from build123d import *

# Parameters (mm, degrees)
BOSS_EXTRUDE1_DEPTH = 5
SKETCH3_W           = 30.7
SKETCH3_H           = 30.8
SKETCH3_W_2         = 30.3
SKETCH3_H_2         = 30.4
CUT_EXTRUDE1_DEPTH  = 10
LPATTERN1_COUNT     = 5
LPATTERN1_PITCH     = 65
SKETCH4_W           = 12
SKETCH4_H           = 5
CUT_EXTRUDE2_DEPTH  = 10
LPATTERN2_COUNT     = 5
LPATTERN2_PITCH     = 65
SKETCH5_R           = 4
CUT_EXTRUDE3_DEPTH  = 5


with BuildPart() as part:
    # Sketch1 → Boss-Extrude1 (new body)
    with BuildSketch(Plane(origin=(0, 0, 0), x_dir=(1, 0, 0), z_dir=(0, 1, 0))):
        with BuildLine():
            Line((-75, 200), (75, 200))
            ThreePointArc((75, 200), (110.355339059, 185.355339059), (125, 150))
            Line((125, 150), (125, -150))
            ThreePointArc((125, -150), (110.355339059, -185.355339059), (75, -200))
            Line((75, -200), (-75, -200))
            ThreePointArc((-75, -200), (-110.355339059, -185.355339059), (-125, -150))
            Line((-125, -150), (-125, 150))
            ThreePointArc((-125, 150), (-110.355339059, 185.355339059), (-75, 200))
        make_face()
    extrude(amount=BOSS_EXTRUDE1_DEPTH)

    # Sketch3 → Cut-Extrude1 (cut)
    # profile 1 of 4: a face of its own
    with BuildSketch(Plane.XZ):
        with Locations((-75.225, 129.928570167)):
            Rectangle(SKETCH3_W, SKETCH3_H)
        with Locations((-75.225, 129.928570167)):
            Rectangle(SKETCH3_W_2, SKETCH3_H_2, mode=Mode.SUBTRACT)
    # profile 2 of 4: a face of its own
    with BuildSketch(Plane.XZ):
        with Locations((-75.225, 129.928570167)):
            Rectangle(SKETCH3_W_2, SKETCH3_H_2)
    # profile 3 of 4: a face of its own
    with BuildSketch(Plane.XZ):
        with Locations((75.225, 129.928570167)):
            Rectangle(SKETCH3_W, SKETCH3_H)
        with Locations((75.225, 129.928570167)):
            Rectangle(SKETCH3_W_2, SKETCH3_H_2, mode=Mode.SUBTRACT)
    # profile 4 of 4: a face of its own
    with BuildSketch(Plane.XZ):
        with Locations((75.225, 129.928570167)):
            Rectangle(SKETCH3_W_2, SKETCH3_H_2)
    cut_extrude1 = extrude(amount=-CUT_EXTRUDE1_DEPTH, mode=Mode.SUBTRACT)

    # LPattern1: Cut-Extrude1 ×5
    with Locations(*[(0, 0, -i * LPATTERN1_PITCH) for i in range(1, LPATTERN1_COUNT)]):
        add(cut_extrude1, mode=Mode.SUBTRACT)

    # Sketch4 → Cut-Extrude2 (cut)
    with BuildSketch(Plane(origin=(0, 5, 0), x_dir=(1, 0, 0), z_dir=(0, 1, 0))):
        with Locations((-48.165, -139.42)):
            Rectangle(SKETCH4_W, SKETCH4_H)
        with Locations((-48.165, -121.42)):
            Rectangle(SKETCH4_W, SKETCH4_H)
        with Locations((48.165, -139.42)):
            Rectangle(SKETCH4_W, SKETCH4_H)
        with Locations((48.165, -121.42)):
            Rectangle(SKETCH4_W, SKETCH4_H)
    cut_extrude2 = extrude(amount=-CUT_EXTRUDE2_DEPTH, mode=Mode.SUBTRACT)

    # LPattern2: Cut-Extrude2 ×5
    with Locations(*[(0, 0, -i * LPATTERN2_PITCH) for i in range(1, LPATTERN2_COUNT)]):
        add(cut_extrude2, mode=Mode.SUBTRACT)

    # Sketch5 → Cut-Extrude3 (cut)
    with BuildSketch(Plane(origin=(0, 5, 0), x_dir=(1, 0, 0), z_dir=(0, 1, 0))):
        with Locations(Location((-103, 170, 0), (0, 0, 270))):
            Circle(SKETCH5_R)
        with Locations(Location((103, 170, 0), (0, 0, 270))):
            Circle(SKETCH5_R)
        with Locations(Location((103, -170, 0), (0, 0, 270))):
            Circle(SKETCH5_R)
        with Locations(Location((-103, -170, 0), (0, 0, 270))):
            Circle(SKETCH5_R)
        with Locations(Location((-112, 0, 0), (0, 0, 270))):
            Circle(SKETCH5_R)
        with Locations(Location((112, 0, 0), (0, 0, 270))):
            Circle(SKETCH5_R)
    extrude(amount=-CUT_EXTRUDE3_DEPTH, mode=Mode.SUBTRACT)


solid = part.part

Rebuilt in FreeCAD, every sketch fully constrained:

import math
import FreeCAD as App
import Part
import Sketcher

V = App.Vector
Q = App.Units.Quantity

doc = App.newDocument("Part")
body = doc.addObject("PartDesign::Body", "Body")

# Sketch on XZ plane
sketch1 = body.newObject("Sketcher::SketchObject", "Sketch")
sketch1.AttachmentSupport = (doc.getObject("XZ_Plane"), [""])
sketch1.MapMode = "FlatFace"
sketch1.addGeometry([
    Part.LineSegment(V(75, -200, 0), V(-75, -200, 0)),  # 0
    Part.ArcOfCircle(Part.Circle(V(-75, -150, 0), V(0, 0, 1), 50), math.radians(-180), math.radians(-90)),  # 1
    Part.LineSegment(V(-125, -150, 0), V(-125, 150, 0)),  # 2
    Part.ArcOfCircle(Part.Circle(V(-75, 150, 0), V(0, 0, 1), 50), math.radians(90), math.radians(180)),  # 3
    Part.LineSegment(V(-75, 200, 0), V(75, 200, 0)),  # 4
    Part.ArcOfCircle(Part.Circle(V(75, 150, 0), V(0, 0, 1), 50), math.radians(0), math.radians(90)),  # 5
    Part.LineSegment(V(125, 150, 0), V(125, -150, 0)),  # 6
    Part.ArcOfCircle(Part.Circle(V(75, -150, 0), V(0, 0, 1), 50), math.radians(-90), math.radians(0)),  # 7
], False)
sketch1.addConstraint([
    Sketcher.Constraint("Tangent", 0, 2, 1, 2),
    Sketcher.Constraint("Tangent", 1, 1, 2, 1),
    Sketcher.Constraint("Tangent", 2, 2, 3, 2),
    Sketcher.Constraint("Tangent", 3, 1, 4, 1),
    Sketcher.Constraint("Tangent", 4, 2, 5, 2),
    Sketcher.Constraint("Tangent", 5, 1, 6, 1),
    Sketcher.Constraint("Tangent", 6, 2, 7, 2),
    Sketcher.Constraint("Tangent", 7, 1, 0, 1),
    Sketcher.Constraint("Horizontal", 0),
    Sketcher.Constraint("Vertical", 2),
    Sketcher.Constraint("Horizontal", 4),
    Sketcher.Constraint("Vertical", 6),
    Sketcher.Constraint("Equal", 1, 3),
    Sketcher.Constraint("Equal", 3, 5),
    Sketcher.Constraint("Equal", 5, 7),
    Sketcher.Constraint("Symmetric", 1, 3, 5, 3, -1, 1),
    Sketcher.Constraint("Radius", 1, Q("50 mm")),
    Sketcher.Constraint("DistanceX", 0, 2, 0, 1, Q("150 mm")),
    Sketcher.Constraint("DistanceY", 2, 1, 2, 2, Q("300 mm")),
])
pad1 = body.newObject("PartDesign::Pad", "Pad")
pad1.Profile = sketch1
pad1.Length = 5
pad1.Reversed = True

# Sketch on XZ plane
sketch2 = body.newObject("Sketcher::SketchObject", "Sketch001")
sketch2.AttachmentSupport = (doc.getObject("XZ_Plane"), [""])
sketch2.MapMode = "FlatFace"
sketch2.addGeometry([
    Part.LineSegment(V(-90.575, 145.32857, 0), V(-90.575, 114.52857, 0)),  # 0
    Part.LineSegment(V(-90.575, 114.52857, 0), V(-59.875, 114.52857, 0)),  # 1
    Part.LineSegment(V(-59.875, 114.52857, 0), V(-59.875, 145.32857, 0)),  # 2
    Part.LineSegment(V(-59.875, 145.32857, 0), V(-90.575, 145.32857, 0)),  # 3
    Part.LineSegment(V(59.875, 145.32857, 0), V(59.875, 114.52857, 0)),  # 4
    Part.LineSegment(V(59.875, 114.52857, 0), V(90.575, 114.52857, 0)),  # 5
    Part.LineSegment(V(90.575, 114.52857, 0), V(90.575, 145.32857, 0)),  # 6
    Part.LineSegment(V(90.575, 145.32857, 0), V(59.875, 145.32857, 0)),  # 7
], False)
sketch2.addConstraint([
    Sketcher.Constraint("Coincident", 0, 2, 1, 1),
    Sketcher.Constraint("Coincident", 1, 2, 2, 1),
    Sketcher.Constraint("Coincident", 2, 2, 3, 1),
    Sketcher.Constraint("Coincident", 3, 2, 0, 1),
    Sketcher.Constraint("Coincident", 4, 2, 5, 1),
    Sketcher.Constraint("Coincident", 5, 2, 6, 1),
    Sketcher.Constraint("Coincident", 6, 2, 7, 1),
    Sketcher.Constraint("Coincident", 7, 2, 4, 1),
    Sketcher.Constraint("Vertical", 0),
    Sketcher.Constraint("Horizontal", 1),
    Sketcher.Constraint("Vertical", 2),
    Sketcher.Constraint("Horizontal", 3),
    Sketcher.Constraint("Vertical", 4),
    Sketcher.Constraint("Horizontal", 5),
    Sketcher.Constraint("Vertical", 6),
    Sketcher.Constraint("Horizontal", 7),
    Sketcher.Constraint("Symmetric", 1, 2, 4, 2, -2),
    Sketcher.Constraint("Symmetric", 3, 2, 6, 2, -2),
    Sketcher.Constraint("DistanceX", 1, 1, 1, 2, Q("30.7 mm")),
    Sketcher.Constraint("DistanceY", 0, 2, 0, 1, Q("30.8 mm")),
    Sketcher.Constraint("DistanceX", 1, 2, 4, 2, Q("119.75 mm")),
    Sketcher.Constraint("DistanceY", -1, 1, 0, 2, Q("114.52857 mm")),
])
pocket1 = body.newObject("PartDesign::Pocket", "Pocket")
pocket1.Profile = sketch2
pocket1.Length = 10
doc.recompute()

linearpattern = body.newObject("PartDesign::LinearPattern", "LinearPattern")
linearpattern.Originals = [pocket1]
linearpattern.Direction = (doc.getObject("Z_Axis"), [""])
linearpattern.Mode = "offset"
linearpattern.Offset = 65
linearpattern.Occurrences = 5
linearpattern.Reversed = True
body.Tip = linearpattern

# Sketch on XZ plane
sketch3 = body.newObject("Sketcher::SketchObject", "Sketch002")
sketch3.AttachmentSupport = (doc.getObject("XZ_Plane"), [""])
sketch3.MapMode = "FlatFace"
sketch3.AttachmentOffset = App.Placement(V(0, 0, -5), App.Rotation())
sketch3.addGeometry([
    Part.LineSegment(V(-54.165, 136.92, 0), V(-54.165, 141.92, 0)),  # 0
    Part.LineSegment(V(-54.165, 141.92, 0), V(-42.165, 141.92, 0)),  # 1
    Part.LineSegment(V(-42.165, 141.92, 0), V(-42.165, 136.92, 0)),  # 2
    Part.LineSegment(V(-42.165, 136.92, 0), V(-54.165, 136.92, 0)),  # 3
    Part.LineSegment(V(-54.165, 118.92, 0), V(-54.165, 123.92, 0)),  # 4
    Part.LineSegment(V(-54.165, 123.92, 0), V(-42.165, 123.92, 0)),  # 5
    Part.LineSegment(V(-42.165, 123.92, 0), V(-42.165, 118.92, 0)),  # 6
    Part.LineSegment(V(-42.165, 118.92, 0), V(-54.165, 118.92, 0)),  # 7
    Part.LineSegment(V(42.165, 136.92, 0), V(42.165, 141.92, 0)),  # 8
    Part.LineSegment(V(42.165, 141.92, 0), V(54.165, 141.92, 0)),  # 9
    Part.LineSegment(V(54.165, 141.92, 0), V(54.165, 136.92, 0)),  # 10
    Part.LineSegment(V(54.165, 136.92, 0), V(42.165, 136.92, 0)),  # 11
    Part.LineSegment(V(42.165, 118.92, 0), V(42.165, 123.92, 0)),  # 12
    Part.LineSegment(V(42.165, 123.92, 0), V(54.165, 123.92, 0)),  # 13
    Part.LineSegment(V(54.165, 123.92, 0), V(54.165, 118.92, 0)),  # 14
    Part.LineSegment(V(54.165, 118.92, 0), V(42.165, 118.92, 0)),  # 15
], False)
sketch3.addConstraint([
    Sketcher.Constraint("Coincident", 0, 2, 1, 1),
    Sketcher.Constraint("Coincident", 1, 2, 2, 1),
    Sketcher.Constraint("Coincident", 2, 2, 3, 1),
    Sketcher.Constraint("Coincident", 3, 2, 0, 1),
    Sketcher.Constraint("Coincident", 4, 2, 5, 1),
    Sketcher.Constraint("Coincident", 5, 2, 6, 1),
    Sketcher.Constraint("Coincident", 6, 2, 7, 1),
    Sketcher.Constraint("Coincident", 7, 2, 4, 1),
    Sketcher.Constraint("Coincident", 8, 2, 9, 1),
    Sketcher.Constraint("Coincident", 9, 2, 10, 1),
    Sketcher.Constraint("Coincident", 10, 2, 11, 1),
    Sketcher.Constraint("Coincident", 11, 2, 8, 1),
    Sketcher.Constraint("Coincident", 12, 2, 13, 1),
    Sketcher.Constraint("Coincident", 13, 2, 14, 1),
    Sketcher.Constraint("Coincident", 14, 2, 15, 1),
    Sketcher.Constraint("Coincident", 15, 2, 12, 1),
    Sketcher.Constraint("Vertical", 0),
    Sketcher.Constraint("Horizontal", 1),
    Sketcher.Constraint("Vertical", 2),
    Sketcher.Constraint("Horizontal", 3),
    Sketcher.Constraint("Vertical", 4),
    Sketcher.Constraint("Horizontal", 5),
    Sketcher.Constraint("Vertical", 6),
    Sketcher.Constraint("Horizontal", 7),
    Sketcher.Constraint("Vertical", 8),
    Sketcher.Constraint("Horizontal", 9),
    Sketcher.Constraint("Vertical", 10),
    Sketcher.Constraint("Horizontal", 11),
    Sketcher.Constraint("Vertical", 12),
    Sketcher.Constraint("Horizontal", 13),
    Sketcher.Constraint("Vertical", 14),
    Sketcher.Constraint("Horizontal", 15),
    Sketcher.Constraint("Symmetric", 1, 2, 8, 2, -2),
    Sketcher.Constraint("Symmetric", 3, 2, 10, 2, -2),
    Sketcher.Constraint("Symmetric", 5, 2, 12, 2, -2),
    Sketcher.Constraint("Symmetric", 7, 2, 14, 2, -2),
    Sketcher.Constraint("Vertical", 3, 2, 4, 2),
    Sketcher.Constraint("Vertical", 2, 2, 5, 2),
    Sketcher.Constraint("Equal", 2, 4),
    Sketcher.Constraint("DistanceX", 1, 1, 1, 2, Q("12 mm")),
    Sketcher.Constraint("DistanceY", 0, 1, 0, 2, Q("5 mm")),
    Sketcher.Constraint("DistanceY", 4, 2, 3, 2, Q("13 mm")),
    Sketcher.Constraint("DistanceY", -1, 1, 0, 2, Q("141.92 mm")),
    Sketcher.Constraint("DistanceX", 1, 2, 8, 2, Q("84.33 mm")),
])
pocket2 = body.newObject("PartDesign::Pocket", "Pocket001")
pocket2.Profile = sketch3
pocket2.Length = 10
pocket2.Reversed = True
doc.recompute()

linearpattern2 = body.newObject("PartDesign::LinearPattern", "LinearPattern001")
linearpattern2.Originals = [pocket2]
linearpattern2.Direction = (doc.getObject("Z_Axis"), [""])
linearpattern2.Mode = "offset"
linearpattern2.Offset = 65
linearpattern2.Occurrences = 5
linearpattern2.Reversed = True
body.Tip = linearpattern2

# Sketch on XZ plane
sketch4 = body.newObject("Sketcher::SketchObject", "Sketch003")
sketch4.AttachmentSupport = (doc.getObject("XZ_Plane"), [""])
sketch4.MapMode = "FlatFace"
sketch4.AttachmentOffset = App.Placement(V(0, 0, -5), App.Rotation())
sketch4.addGeometry([
    Part.Circle(V(-103, -170, 0), V(0, 0, 1), 4),  # 0
    Part.Circle(V(103, -170, 0), V(0, 0, 1), 4),  # 1
    Part.Circle(V(103, 170, 0), V(0, 0, 1), 4),  # 2
    Part.Circle(V(-103, 170, 0), V(0, 0, 1), 4),  # 3
    Part.Circle(V(-112, 0, 0), V(0, 0, 1), 4),  # 4
    Part.Circle(V(112, 0, 0), V(0, 0, 1), 4),  # 5
], False)
sketch4.addConstraint([
    Sketcher.Constraint("Equal", 0, 1),
    Sketcher.Constraint("Equal", 1, 2),
    Sketcher.Constraint("Equal", 2, 3),
    Sketcher.Constraint("Equal", 3, 4),
    Sketcher.Constraint("Equal", 4, 5),
    Sketcher.Constraint("Symmetric", 0, 3, 2, 3, -1, 1),
    Sketcher.Constraint("Symmetric", 1, 3, 3, 3, -1, 1),
    Sketcher.Constraint("Symmetric", 4, 3, 5, 3, -1, 1),
    Sketcher.Constraint("Symmetric", 0, 3, 1, 3, -2),
    Sketcher.Constraint("PointOnObject", 4, 3, -1),
    Sketcher.Constraint("Diameter", 0, Q("8 mm")),
    Sketcher.Constraint("DistanceX", 0, 3, -1, 1, Q("103 mm")),
    Sketcher.Constraint("DistanceY", 0, 3, -1, 1, Q("170 mm")),
    Sketcher.Constraint("DistanceX", 4, 3, -1, 1, Q("112 mm")),
])
pocket3 = body.newObject("PartDesign::Pocket", "Pocket002")
pocket3.Profile = sketch4
pocket3.Length = 5
pocket3.Reversed = True

doc.recompute()
